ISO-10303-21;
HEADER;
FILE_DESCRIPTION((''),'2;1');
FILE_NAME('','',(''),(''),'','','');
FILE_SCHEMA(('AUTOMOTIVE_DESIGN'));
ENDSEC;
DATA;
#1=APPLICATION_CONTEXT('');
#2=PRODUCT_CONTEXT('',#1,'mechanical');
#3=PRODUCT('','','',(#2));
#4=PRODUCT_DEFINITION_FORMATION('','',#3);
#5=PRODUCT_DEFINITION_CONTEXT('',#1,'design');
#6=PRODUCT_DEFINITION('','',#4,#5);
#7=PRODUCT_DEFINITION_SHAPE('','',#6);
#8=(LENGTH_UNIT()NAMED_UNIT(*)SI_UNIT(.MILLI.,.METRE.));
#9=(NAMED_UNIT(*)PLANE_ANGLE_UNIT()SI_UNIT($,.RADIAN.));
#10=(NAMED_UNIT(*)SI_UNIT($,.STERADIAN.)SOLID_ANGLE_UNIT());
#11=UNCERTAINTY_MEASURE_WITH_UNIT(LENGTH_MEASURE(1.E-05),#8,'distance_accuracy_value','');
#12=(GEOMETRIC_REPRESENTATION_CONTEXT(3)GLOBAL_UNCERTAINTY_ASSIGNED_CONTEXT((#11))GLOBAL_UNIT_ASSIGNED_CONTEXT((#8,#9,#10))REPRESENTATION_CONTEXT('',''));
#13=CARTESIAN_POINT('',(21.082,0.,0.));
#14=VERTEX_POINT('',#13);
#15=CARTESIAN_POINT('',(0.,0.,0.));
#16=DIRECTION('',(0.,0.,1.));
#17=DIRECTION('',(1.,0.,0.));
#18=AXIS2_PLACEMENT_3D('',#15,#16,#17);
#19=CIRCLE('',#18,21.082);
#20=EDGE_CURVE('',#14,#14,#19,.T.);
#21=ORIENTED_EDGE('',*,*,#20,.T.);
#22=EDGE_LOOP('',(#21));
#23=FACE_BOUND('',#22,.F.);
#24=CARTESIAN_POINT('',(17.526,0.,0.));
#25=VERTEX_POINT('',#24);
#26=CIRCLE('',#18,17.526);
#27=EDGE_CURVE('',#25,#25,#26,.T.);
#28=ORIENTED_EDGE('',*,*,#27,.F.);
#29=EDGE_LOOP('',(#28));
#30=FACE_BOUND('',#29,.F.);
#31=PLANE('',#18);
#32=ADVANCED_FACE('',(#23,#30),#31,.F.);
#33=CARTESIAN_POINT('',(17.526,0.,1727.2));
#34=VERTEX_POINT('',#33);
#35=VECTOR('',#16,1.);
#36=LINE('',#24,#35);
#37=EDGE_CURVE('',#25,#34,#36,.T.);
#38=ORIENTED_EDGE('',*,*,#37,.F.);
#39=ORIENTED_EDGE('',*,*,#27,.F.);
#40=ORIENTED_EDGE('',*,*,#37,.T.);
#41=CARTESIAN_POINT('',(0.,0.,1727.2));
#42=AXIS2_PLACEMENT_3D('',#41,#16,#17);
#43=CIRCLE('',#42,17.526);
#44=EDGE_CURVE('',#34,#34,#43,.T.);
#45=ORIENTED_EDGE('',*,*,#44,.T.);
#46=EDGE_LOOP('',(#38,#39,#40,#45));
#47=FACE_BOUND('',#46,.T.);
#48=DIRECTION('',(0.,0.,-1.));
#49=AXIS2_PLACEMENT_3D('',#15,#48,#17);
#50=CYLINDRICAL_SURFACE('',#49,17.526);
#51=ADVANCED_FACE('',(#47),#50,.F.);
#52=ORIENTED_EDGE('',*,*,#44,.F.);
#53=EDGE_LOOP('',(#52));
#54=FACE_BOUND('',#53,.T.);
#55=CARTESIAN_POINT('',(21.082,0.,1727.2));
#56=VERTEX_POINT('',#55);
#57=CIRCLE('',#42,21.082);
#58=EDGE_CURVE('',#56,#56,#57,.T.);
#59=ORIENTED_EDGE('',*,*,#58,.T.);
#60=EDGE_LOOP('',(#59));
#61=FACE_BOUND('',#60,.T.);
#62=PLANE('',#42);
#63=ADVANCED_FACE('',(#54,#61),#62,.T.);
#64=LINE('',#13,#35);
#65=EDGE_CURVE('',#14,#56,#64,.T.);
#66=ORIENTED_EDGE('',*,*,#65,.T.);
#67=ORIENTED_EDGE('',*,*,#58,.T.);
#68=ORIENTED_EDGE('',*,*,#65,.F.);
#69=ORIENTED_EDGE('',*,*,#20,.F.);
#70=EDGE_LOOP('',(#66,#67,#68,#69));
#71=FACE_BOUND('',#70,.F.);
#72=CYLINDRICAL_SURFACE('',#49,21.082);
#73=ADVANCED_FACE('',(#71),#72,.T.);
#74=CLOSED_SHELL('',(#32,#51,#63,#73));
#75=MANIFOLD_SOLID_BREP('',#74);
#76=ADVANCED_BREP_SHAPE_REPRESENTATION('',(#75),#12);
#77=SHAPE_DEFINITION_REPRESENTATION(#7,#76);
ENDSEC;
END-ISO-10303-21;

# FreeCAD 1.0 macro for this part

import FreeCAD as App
import Part
import Sketcher
from FreeCAD import Vector
Q = App.Units.Quantity

doc = App.newDocument("Part")
body = doc.addObject("PartDesign::Body", "Body")

# Sketch on XY plane
sketch1 = body.newObject("Sketcher::SketchObject", "Sketch")
sketch1.AttachmentSupport = (doc.getObject("XY_Plane"), [""])
sketch1.MapMode = "FlatFace"
sketch1.addGeometry(Part.Circle(Vector(0, 0, 0), Vector(0, 0, 1), 21), False)
sketch1.addGeometry(Part.Circle(Vector(0, 0, 0), Vector(0, 0, 1), 18), False)
sketch1.addConstraint(Sketcher.Constraint("Coincident", 0, 3, -1, 1))
sketch1.addConstraint(Sketcher.Constraint("Coincident", 1, 3, -1, 1))
sketch1.addConstraint(Sketcher.Constraint("Diameter", 0, Q("1.66 in")))
sketch1.addConstraint(Sketcher.Constraint("Diameter", 1, Q("1.38 in")))
pad1 = body.newObject("PartDesign::Pad", "Pad")
pad1.Profile = sketch1
pad1.Length = Q("68 in")

doc.recompute()
